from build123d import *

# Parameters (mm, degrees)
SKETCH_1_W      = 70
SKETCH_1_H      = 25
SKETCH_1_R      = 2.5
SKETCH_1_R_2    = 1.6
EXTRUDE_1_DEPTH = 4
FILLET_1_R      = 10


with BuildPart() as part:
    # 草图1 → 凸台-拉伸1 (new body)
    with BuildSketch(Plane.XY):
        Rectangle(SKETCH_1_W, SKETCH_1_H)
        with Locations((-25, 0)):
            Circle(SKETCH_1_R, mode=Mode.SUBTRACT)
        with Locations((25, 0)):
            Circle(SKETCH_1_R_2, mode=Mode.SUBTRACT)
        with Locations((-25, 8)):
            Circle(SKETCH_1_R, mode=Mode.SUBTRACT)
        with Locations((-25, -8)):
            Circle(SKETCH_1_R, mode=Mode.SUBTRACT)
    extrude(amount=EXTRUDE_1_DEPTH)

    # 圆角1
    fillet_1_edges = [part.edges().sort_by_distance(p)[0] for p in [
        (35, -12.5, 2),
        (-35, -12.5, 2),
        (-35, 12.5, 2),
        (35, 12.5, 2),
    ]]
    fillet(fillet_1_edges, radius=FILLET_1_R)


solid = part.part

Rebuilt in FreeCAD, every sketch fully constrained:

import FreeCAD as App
import Part
import Sketcher
Q = App.Units.Quantity


def edges_at(feature, points):
    """Names of the edges that pass closest to the given points."""
    edges = feature.Shape.Edges
    near = lambda p: min(range(len(edges)), key=lambda i: edges[i].distToShape(Part.Vertex(*p))[0])
    return sorted({f"Edge{near(p) + 1}" for p in points})


def add_polygon(sketch, points):
    """Adds a closed chain of lines whose ends are joined by coincident constraints."""
    first, n = sketch.GeometryCount, len(points)
    for a, b in zip(points, points[1:] + points[:1]):
        sketch.addGeometry(Part.LineSegment(App.Vector(*a, 0), App.Vector(*b, 0)), False)
    for i in range(n):
        sketch.addConstraint(Sketcher.Constraint("Coincident", first + i, 2, first + (i + 1) % n, 1))

doc = App.newDocument("Part")
params = doc.addObject("Spreadsheet::Sheet", "Params")
for row, (alias, value) in enumerate([
    ("sketch1_diameter", "5 mm"),
    ("sketch1_diameter2", "3.2 mm"),
    ("sketch1_width", "70 mm"),
    ("sketch1_height", "25 mm"),
    ("pad1_length", "4 mm"),
    ("fillet_radius", "10 mm"),
], start=1):
    params.set(f"A{row}", alias)
    params.set(f"B{row}", "=" + value)
    params.setAlias(f"B{row}", alias)

body = doc.addObject("PartDesign::Body", "Body")

# Sketch on XY plane
sketch1 = body.newObject("Sketcher::SketchObject", "Sketch")
sketch1.AttachmentSupport = (doc.getObject("XY_Plane"), [""])
sketch1.MapMode = "FlatFace"
add_polygon(sketch1, [(-35, 12.5), (-35, -12.5), (35, -12.5), (35, 12.5)])  # lines 0-3
sketch1.addGeometry(Part.Circle(App.Vector(-25, -8, 0), App.Vector(0, 0, 1), 2.5), False)  # 4
sketch1.addGeometry(Part.Circle(App.Vector(-25, 0, 0), App.Vector(0, 0, 1), 2.5), False)  # 5
sketch1.addGeometry(Part.Circle(App.Vector(-25, 8, 0), App.Vector(0, 0, 1), 2.5), False)  # 6
sketch1.addGeometry(Part.Circle(App.Vector(25, 0, 0), App.Vector(0, 0, 1), 1.6), False)  # 7
sketch1.addConstraint(Sketcher.Constraint("Vertical", 0))
sketch1.addConstraint(Sketcher.Constraint("Horizontal", 1))
sketch1.addConstraint(Sketcher.Constraint("Vertical", 2))
sketch1.addConstraint(Sketcher.Constraint("Horizontal", 3))
sketch1.addConstraint(Sketcher.Constraint("Equal", 4, 5))
sketch1.addConstraint(Sketcher.Constraint("Equal", 5, 6))
sketch1.addConstraint(Sketcher.Constraint("Symmetric", 5, 3, 7, 3, -1, 1))
sketch1.addConstraint(Sketcher.Constraint("Symmetric", 0, 2, 2, 2, -1, 1))
sketch1.addConstraint(Sketcher.Constraint("Symmetric", 4, 3, 6, 3, -1))
sketch1.addConstraint(Sketcher.Constraint("PointOnObject", 5, 3, -1))
sketch1.addConstraint(Sketcher.Constraint("Vertical", 4, 3, 5, 3))
sketch1.addConstraint(Sketcher.Constraint("Diameter", 4, Q("5 mm")))
sketch1.addConstraint(Sketcher.Constraint("Diameter", 7, Q("3.2 mm")))
sketch1.addConstraint(Sketcher.Constraint("DistanceX", 1, 1, 1, 2, Q("70 mm")))
sketch1.addConstraint(Sketcher.Constraint("DistanceY", 0, 2, 0, 1, Q("25 mm")))
sketch1.addConstraint(Sketcher.Constraint("DistanceX", 4, 3, -1, 1, Q("25 mm")))
sketch1.addConstraint(Sketcher.Constraint("DistanceY", 4, 3, -1, 1, Q("8 mm")))
sketch1.setExpression("Constraints[15]", "Params.sketch1_diameter")
sketch1.setExpression("Constraints[16]", "Params.sketch1_diameter2")
sketch1.setExpression("Constraints[17]", "Params.sketch1_width")
sketch1.setExpression("Constraints[18]", "Params.sketch1_height")
pad1 = body.newObject("PartDesign::Pad", "Pad")
pad1.Profile = sketch1
pad1.setExpression("Length", "Params.pad1_length")
doc.recompute()

fillet = body.newObject("PartDesign::Fillet", "Fillet")
fillet.Base = (pad1, edges_at(pad1, [
    (35, -12.5, 2),
    (-35, -12.5, 2),
    (-35, 12.5, 2),
    (35, 12.5, 2),
]))
fillet.setExpression("Radius", "Params.fillet_radius")

doc.recompute()
